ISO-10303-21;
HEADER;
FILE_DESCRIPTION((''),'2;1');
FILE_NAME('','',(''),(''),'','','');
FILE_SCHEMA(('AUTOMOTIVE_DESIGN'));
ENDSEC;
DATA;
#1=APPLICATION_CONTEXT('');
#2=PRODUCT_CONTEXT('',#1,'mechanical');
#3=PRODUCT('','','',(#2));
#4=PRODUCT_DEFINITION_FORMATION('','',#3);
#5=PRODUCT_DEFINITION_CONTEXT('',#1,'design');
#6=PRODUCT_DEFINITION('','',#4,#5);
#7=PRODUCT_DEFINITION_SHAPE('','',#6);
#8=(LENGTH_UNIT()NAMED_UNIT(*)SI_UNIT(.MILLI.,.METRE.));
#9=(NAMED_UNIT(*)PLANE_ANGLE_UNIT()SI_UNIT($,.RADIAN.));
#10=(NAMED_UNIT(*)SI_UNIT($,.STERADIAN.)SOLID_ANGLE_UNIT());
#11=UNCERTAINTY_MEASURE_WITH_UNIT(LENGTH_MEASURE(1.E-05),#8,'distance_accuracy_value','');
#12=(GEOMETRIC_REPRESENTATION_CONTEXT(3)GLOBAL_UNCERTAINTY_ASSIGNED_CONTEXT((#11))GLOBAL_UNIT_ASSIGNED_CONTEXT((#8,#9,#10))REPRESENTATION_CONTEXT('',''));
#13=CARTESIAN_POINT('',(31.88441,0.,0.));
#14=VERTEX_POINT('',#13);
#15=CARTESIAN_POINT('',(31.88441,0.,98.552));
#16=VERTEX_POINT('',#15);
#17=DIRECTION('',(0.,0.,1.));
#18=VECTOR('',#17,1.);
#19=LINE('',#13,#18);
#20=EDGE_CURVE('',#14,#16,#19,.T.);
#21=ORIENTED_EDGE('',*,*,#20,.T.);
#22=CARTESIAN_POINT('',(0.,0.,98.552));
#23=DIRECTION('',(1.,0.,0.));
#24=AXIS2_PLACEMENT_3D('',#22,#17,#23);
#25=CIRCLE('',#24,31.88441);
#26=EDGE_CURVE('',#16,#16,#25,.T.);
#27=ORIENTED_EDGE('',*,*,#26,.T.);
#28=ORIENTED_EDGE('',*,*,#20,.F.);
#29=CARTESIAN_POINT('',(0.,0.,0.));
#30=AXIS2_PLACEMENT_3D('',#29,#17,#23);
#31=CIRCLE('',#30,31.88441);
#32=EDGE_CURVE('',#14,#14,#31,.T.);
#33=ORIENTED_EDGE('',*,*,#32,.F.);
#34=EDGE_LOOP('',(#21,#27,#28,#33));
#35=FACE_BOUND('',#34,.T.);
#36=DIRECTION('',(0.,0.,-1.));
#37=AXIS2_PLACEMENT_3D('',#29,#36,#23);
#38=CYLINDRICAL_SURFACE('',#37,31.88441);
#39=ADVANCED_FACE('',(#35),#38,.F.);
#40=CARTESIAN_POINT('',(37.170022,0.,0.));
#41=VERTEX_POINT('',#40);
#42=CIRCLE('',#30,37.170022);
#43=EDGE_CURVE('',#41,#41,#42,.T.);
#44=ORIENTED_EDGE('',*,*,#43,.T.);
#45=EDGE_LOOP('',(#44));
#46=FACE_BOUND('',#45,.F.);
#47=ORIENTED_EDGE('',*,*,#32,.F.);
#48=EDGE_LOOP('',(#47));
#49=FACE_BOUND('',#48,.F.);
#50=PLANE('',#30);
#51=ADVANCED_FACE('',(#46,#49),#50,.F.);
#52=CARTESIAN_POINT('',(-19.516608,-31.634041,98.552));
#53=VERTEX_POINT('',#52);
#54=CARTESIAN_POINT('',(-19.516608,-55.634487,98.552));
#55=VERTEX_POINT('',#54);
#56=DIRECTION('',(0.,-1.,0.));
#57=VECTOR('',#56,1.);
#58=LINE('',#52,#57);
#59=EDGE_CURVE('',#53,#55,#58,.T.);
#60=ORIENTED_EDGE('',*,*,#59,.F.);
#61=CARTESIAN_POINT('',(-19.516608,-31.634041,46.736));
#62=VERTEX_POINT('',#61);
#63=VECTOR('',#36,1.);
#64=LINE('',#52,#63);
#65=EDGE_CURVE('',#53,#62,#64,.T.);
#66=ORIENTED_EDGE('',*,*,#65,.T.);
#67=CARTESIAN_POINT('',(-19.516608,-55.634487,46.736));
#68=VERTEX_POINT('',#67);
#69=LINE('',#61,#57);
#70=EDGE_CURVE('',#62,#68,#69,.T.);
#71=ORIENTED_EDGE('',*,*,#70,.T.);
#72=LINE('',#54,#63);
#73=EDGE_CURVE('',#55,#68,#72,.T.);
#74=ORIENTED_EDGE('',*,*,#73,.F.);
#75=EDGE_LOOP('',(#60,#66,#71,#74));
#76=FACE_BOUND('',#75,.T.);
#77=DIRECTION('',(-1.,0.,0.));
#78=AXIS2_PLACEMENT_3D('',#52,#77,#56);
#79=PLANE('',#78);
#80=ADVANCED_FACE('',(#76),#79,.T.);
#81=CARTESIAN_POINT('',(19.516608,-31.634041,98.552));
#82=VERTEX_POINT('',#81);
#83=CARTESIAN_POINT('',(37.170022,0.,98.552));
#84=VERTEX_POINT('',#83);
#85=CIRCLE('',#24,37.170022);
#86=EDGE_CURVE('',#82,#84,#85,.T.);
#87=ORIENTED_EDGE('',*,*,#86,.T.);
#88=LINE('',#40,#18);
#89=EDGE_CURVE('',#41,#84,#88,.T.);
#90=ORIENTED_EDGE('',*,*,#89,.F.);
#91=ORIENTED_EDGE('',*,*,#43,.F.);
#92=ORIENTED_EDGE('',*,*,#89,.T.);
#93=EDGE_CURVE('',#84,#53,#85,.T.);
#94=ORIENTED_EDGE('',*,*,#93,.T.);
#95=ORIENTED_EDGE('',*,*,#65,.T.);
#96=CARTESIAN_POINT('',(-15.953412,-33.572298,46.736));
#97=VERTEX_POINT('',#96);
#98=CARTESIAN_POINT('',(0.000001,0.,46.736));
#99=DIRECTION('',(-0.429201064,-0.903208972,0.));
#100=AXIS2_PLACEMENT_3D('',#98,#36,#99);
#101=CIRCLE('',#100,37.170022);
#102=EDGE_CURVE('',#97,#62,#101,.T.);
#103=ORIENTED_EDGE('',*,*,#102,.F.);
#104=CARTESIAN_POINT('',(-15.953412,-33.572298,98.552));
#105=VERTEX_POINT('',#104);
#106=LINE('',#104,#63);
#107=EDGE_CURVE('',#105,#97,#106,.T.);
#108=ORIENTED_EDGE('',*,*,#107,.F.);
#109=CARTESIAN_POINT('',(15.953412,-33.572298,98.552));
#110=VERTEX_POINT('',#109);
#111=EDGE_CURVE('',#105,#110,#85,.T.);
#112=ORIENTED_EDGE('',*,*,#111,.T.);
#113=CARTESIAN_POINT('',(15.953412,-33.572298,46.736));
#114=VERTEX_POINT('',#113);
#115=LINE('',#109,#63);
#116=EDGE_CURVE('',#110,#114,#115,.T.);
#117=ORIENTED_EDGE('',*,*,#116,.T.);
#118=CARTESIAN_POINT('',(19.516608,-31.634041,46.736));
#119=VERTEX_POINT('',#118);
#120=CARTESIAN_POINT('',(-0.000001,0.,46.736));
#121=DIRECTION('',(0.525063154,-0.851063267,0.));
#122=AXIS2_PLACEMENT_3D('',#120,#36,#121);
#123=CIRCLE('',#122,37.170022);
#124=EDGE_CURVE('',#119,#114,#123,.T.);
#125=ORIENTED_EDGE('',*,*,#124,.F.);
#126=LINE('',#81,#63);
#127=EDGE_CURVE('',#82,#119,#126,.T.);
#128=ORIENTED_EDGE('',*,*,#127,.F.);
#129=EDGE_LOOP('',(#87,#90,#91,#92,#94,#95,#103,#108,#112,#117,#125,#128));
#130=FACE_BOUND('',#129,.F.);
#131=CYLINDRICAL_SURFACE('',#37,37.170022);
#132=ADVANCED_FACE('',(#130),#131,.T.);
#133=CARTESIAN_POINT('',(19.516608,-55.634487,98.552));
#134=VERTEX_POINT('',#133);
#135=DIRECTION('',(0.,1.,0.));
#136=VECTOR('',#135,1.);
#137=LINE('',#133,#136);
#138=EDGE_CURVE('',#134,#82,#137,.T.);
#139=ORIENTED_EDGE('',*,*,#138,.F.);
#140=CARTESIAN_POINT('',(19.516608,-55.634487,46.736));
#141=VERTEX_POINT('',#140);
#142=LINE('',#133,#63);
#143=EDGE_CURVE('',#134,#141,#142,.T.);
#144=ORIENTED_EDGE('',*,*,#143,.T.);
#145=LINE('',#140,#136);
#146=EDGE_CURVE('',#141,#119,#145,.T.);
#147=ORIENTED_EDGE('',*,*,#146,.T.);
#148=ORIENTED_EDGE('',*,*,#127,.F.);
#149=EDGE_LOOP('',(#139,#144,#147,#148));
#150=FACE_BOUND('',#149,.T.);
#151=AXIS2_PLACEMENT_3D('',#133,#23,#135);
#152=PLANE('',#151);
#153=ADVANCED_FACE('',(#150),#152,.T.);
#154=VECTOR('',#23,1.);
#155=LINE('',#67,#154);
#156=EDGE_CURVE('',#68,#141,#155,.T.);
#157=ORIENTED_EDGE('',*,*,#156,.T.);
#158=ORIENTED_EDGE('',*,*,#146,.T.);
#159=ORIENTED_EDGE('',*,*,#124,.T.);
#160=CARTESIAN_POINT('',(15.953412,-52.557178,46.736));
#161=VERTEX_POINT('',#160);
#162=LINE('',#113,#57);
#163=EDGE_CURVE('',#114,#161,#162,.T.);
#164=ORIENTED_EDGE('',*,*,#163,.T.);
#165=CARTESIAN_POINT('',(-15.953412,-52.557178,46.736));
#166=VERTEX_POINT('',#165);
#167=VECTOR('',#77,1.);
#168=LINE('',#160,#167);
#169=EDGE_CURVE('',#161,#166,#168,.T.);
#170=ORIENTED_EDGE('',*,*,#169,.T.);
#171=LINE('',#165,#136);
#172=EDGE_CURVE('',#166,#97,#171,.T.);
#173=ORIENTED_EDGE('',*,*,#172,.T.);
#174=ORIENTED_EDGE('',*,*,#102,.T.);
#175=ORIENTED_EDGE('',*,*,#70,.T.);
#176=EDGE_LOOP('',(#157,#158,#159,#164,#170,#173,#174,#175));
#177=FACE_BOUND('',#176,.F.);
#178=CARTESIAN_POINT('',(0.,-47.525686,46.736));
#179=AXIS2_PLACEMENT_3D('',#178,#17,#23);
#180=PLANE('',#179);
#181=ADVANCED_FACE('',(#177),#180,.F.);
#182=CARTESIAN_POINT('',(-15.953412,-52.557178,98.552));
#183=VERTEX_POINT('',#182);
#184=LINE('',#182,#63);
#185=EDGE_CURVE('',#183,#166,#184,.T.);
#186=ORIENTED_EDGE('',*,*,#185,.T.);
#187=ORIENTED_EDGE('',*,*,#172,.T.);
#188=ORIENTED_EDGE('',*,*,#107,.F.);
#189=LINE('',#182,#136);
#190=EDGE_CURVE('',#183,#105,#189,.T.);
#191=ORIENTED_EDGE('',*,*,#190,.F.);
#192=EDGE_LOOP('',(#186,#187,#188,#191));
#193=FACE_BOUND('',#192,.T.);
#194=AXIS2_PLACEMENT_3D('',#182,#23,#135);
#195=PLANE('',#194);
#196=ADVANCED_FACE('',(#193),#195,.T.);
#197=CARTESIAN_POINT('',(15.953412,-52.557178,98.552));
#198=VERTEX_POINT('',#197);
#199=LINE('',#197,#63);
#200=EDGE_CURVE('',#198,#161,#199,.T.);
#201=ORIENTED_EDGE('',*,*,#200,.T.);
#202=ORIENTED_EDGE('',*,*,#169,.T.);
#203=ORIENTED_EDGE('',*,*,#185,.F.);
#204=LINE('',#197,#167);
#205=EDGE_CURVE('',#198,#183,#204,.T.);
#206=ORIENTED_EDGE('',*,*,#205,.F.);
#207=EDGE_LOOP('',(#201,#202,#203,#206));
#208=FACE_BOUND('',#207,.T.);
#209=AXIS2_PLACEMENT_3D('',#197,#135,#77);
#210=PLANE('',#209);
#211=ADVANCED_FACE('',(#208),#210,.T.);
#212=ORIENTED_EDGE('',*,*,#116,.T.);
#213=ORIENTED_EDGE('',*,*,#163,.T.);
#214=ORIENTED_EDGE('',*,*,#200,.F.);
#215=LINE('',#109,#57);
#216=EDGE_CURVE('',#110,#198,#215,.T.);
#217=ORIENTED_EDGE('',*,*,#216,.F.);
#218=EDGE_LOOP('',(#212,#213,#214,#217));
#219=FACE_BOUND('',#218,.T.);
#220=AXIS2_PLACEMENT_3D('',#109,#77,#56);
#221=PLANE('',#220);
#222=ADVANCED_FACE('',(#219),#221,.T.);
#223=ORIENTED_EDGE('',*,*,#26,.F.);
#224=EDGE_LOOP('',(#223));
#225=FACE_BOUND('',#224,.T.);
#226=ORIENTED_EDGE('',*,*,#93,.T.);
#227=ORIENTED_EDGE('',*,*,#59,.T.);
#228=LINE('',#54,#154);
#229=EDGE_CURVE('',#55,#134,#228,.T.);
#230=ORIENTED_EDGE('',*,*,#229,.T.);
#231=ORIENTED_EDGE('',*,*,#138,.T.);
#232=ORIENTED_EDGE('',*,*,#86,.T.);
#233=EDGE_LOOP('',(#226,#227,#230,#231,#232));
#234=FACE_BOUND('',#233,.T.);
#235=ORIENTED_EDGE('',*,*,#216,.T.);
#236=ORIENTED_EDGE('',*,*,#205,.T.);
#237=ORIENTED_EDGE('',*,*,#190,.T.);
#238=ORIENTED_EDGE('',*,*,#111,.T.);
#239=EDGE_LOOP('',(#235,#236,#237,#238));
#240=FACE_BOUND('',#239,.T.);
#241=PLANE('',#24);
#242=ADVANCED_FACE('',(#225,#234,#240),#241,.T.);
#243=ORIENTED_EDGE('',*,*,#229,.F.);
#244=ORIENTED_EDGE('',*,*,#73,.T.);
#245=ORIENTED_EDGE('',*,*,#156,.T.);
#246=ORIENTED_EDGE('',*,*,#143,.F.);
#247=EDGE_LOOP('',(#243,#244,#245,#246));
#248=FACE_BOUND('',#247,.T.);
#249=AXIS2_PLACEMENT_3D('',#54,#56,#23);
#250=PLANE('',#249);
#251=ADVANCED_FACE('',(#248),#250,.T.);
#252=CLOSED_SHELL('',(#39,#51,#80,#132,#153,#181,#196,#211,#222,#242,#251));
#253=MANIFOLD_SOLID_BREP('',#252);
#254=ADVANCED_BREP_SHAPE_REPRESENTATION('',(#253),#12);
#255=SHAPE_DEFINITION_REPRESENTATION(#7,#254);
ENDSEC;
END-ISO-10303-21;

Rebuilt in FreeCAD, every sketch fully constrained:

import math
import FreeCAD as App
import Part
import Sketcher

doc = App.newDocument("Part")
params = doc.addObject("Spreadsheet::Sheet", "Params")
for row, (alias, value) in enumerate([
    ("pad1_length", "3.88 in"),
    ("pad2_length", "2.04 in"),
], start=1):
    params.set(f"A{row}", alias)
    params.set(f"B{row}", "=" + value)
    params.setAlias(f"B{row}", alias)

body = doc.addObject("PartDesign::Body", "Body")

sketch1 = doc.addObject("Sketcher::SketchObject", "Sketch")
body.addObject(sketch1)
sketch1.AttachmentSupport = (doc.XY_Plane, [""])
sketch1.MapMode = "FlatFace"
sketch1.addGeometry([
    Part.Circle(App.Vector(0, 0, 0), App.Vector(0, 0, 1), 37),
    Part.Circle(App.Vector(0, 0, 0), App.Vector(0, 0, 1), 32),
], False)
sketch1.addConstraint([
    Sketcher.Constraint("Coincident", 0, 3, -1, 1),
    Sketcher.Constraint("Coincident", 1, 3, -1, 1),
    Sketcher.Constraint("Diameter", 1, 63.76882),
    Sketcher.Constraint("Diameter", 0, 74.340044),
])
pad1 = doc.addObject("PartDesign::Pad", "Pad")
body.addObject(pad1)
pad1.Profile = sketch1
pad1.setExpression("Length", "Params.pad1_length")

sketch2 = doc.addObject("Sketcher::SketchObject", "Sketch001")
body.addObject(sketch2)
sketch2.AttachmentSupport = (doc.XY_Plane, [""])
sketch2.MapMode = "FlatFace"
sketch2.AttachmentOffset = App.Placement(App.Vector(0, 0, 3.88 * 25.4), App.Rotation())
sketch2.addGeometry([
    Part.LineSegment(App.Vector(-19.5, -55.6, 0), App.Vector(19.5, -55.6, 0)),
    Part.LineSegment(App.Vector(19.5, -55.6, 0), App.Vector(19.5, -31.6, 0)),
    Part.ArcOfCircle(Part.Circle(App.Vector(0, 0, 0), App.Vector(0, 0, 1), 37.2), math.radians(-64.58), math.radians(-58.33)),
    Part.LineSegment(App.Vector(16, -33.6, 0), App.Vector(16, -52.6, 0)),
    Part.LineSegment(App.Vector(16, -52.6, 0), App.Vector(-16, -52.6, 0)),
    Part.LineSegment(App.Vector(-16, -52.6, 0), App.Vector(-16, -33.6, 0)),
    Part.ArcOfCircle(Part.Circle(App.Vector(0, 0, 0), App.Vector(0, 0, 1), 37.2), math.radians(-121.67), math.radians(-115.42)),
    Part.LineSegment(App.Vector(-19.5, -31.6, 0), App.Vector(-19.5, -55.6, 0)),
], False)
sketch2.addConstraint([
    Sketcher.Constraint("Coincident", 0, 2, 1, 1),
    Sketcher.Constraint("Coincident", 1, 2, 2, 2),
    Sketcher.Constraint("Coincident", 2, 1, 3, 1),
    Sketcher.Constraint("Coincident", 3, 2, 4, 1),
    Sketcher.Constraint("Coincident", 4, 2, 5, 1),
    Sketcher.Constraint("Coincident", 5, 2, 6, 2),
    Sketcher.Constraint("Coincident", 6, 1, 7, 1),
    Sketcher.Constraint("Coincident", 7, 2, 0, 1),
    Sketcher.Constraint("Horizontal", 0),
    Sketcher.Constraint("Vertical", 1),
    Sketcher.Constraint("Vertical", 3),
    Sketcher.Constraint("Horizontal", 4),
    Sketcher.Constraint("Vertical", 5),
    Sketcher.Constraint("Vertical", 7),
    Sketcher.Constraint("Coincident", 2, 3, -1, 1),
    Sketcher.Constraint("Coincident", 6, 3, -1, 1),
    Sketcher.Constraint("Equal", 2, 6),
    Sketcher.Constraint("Horizontal", 2, 1, 5, 2),
    Sketcher.Constraint("Horizontal", 1, 2, 6, 1),
    Sketcher.Constraint("Radius", 2, 37.170022),
    Sketcher.Constraint("DistanceY", 3, 2, 3, 1, 18.98488),
    Sketcher.Constraint("DistanceY", 2, 1, -1, 1, 33.572298),
    Sketcher.Constraint("DistanceX", 0, 1, 0, 2, 39.033216),
    Sketcher.Constraint("DistanceY", 1, 1, 1, 2, 24.000446),
])
pad2 = doc.addObject("PartDesign::Pad", "Pad001")
body.addObject(pad2)
pad2.Profile = sketch2
pad2.setExpression("Length", "Params.pad2_length")
pad2.Reversed = True

doc.recompute()
